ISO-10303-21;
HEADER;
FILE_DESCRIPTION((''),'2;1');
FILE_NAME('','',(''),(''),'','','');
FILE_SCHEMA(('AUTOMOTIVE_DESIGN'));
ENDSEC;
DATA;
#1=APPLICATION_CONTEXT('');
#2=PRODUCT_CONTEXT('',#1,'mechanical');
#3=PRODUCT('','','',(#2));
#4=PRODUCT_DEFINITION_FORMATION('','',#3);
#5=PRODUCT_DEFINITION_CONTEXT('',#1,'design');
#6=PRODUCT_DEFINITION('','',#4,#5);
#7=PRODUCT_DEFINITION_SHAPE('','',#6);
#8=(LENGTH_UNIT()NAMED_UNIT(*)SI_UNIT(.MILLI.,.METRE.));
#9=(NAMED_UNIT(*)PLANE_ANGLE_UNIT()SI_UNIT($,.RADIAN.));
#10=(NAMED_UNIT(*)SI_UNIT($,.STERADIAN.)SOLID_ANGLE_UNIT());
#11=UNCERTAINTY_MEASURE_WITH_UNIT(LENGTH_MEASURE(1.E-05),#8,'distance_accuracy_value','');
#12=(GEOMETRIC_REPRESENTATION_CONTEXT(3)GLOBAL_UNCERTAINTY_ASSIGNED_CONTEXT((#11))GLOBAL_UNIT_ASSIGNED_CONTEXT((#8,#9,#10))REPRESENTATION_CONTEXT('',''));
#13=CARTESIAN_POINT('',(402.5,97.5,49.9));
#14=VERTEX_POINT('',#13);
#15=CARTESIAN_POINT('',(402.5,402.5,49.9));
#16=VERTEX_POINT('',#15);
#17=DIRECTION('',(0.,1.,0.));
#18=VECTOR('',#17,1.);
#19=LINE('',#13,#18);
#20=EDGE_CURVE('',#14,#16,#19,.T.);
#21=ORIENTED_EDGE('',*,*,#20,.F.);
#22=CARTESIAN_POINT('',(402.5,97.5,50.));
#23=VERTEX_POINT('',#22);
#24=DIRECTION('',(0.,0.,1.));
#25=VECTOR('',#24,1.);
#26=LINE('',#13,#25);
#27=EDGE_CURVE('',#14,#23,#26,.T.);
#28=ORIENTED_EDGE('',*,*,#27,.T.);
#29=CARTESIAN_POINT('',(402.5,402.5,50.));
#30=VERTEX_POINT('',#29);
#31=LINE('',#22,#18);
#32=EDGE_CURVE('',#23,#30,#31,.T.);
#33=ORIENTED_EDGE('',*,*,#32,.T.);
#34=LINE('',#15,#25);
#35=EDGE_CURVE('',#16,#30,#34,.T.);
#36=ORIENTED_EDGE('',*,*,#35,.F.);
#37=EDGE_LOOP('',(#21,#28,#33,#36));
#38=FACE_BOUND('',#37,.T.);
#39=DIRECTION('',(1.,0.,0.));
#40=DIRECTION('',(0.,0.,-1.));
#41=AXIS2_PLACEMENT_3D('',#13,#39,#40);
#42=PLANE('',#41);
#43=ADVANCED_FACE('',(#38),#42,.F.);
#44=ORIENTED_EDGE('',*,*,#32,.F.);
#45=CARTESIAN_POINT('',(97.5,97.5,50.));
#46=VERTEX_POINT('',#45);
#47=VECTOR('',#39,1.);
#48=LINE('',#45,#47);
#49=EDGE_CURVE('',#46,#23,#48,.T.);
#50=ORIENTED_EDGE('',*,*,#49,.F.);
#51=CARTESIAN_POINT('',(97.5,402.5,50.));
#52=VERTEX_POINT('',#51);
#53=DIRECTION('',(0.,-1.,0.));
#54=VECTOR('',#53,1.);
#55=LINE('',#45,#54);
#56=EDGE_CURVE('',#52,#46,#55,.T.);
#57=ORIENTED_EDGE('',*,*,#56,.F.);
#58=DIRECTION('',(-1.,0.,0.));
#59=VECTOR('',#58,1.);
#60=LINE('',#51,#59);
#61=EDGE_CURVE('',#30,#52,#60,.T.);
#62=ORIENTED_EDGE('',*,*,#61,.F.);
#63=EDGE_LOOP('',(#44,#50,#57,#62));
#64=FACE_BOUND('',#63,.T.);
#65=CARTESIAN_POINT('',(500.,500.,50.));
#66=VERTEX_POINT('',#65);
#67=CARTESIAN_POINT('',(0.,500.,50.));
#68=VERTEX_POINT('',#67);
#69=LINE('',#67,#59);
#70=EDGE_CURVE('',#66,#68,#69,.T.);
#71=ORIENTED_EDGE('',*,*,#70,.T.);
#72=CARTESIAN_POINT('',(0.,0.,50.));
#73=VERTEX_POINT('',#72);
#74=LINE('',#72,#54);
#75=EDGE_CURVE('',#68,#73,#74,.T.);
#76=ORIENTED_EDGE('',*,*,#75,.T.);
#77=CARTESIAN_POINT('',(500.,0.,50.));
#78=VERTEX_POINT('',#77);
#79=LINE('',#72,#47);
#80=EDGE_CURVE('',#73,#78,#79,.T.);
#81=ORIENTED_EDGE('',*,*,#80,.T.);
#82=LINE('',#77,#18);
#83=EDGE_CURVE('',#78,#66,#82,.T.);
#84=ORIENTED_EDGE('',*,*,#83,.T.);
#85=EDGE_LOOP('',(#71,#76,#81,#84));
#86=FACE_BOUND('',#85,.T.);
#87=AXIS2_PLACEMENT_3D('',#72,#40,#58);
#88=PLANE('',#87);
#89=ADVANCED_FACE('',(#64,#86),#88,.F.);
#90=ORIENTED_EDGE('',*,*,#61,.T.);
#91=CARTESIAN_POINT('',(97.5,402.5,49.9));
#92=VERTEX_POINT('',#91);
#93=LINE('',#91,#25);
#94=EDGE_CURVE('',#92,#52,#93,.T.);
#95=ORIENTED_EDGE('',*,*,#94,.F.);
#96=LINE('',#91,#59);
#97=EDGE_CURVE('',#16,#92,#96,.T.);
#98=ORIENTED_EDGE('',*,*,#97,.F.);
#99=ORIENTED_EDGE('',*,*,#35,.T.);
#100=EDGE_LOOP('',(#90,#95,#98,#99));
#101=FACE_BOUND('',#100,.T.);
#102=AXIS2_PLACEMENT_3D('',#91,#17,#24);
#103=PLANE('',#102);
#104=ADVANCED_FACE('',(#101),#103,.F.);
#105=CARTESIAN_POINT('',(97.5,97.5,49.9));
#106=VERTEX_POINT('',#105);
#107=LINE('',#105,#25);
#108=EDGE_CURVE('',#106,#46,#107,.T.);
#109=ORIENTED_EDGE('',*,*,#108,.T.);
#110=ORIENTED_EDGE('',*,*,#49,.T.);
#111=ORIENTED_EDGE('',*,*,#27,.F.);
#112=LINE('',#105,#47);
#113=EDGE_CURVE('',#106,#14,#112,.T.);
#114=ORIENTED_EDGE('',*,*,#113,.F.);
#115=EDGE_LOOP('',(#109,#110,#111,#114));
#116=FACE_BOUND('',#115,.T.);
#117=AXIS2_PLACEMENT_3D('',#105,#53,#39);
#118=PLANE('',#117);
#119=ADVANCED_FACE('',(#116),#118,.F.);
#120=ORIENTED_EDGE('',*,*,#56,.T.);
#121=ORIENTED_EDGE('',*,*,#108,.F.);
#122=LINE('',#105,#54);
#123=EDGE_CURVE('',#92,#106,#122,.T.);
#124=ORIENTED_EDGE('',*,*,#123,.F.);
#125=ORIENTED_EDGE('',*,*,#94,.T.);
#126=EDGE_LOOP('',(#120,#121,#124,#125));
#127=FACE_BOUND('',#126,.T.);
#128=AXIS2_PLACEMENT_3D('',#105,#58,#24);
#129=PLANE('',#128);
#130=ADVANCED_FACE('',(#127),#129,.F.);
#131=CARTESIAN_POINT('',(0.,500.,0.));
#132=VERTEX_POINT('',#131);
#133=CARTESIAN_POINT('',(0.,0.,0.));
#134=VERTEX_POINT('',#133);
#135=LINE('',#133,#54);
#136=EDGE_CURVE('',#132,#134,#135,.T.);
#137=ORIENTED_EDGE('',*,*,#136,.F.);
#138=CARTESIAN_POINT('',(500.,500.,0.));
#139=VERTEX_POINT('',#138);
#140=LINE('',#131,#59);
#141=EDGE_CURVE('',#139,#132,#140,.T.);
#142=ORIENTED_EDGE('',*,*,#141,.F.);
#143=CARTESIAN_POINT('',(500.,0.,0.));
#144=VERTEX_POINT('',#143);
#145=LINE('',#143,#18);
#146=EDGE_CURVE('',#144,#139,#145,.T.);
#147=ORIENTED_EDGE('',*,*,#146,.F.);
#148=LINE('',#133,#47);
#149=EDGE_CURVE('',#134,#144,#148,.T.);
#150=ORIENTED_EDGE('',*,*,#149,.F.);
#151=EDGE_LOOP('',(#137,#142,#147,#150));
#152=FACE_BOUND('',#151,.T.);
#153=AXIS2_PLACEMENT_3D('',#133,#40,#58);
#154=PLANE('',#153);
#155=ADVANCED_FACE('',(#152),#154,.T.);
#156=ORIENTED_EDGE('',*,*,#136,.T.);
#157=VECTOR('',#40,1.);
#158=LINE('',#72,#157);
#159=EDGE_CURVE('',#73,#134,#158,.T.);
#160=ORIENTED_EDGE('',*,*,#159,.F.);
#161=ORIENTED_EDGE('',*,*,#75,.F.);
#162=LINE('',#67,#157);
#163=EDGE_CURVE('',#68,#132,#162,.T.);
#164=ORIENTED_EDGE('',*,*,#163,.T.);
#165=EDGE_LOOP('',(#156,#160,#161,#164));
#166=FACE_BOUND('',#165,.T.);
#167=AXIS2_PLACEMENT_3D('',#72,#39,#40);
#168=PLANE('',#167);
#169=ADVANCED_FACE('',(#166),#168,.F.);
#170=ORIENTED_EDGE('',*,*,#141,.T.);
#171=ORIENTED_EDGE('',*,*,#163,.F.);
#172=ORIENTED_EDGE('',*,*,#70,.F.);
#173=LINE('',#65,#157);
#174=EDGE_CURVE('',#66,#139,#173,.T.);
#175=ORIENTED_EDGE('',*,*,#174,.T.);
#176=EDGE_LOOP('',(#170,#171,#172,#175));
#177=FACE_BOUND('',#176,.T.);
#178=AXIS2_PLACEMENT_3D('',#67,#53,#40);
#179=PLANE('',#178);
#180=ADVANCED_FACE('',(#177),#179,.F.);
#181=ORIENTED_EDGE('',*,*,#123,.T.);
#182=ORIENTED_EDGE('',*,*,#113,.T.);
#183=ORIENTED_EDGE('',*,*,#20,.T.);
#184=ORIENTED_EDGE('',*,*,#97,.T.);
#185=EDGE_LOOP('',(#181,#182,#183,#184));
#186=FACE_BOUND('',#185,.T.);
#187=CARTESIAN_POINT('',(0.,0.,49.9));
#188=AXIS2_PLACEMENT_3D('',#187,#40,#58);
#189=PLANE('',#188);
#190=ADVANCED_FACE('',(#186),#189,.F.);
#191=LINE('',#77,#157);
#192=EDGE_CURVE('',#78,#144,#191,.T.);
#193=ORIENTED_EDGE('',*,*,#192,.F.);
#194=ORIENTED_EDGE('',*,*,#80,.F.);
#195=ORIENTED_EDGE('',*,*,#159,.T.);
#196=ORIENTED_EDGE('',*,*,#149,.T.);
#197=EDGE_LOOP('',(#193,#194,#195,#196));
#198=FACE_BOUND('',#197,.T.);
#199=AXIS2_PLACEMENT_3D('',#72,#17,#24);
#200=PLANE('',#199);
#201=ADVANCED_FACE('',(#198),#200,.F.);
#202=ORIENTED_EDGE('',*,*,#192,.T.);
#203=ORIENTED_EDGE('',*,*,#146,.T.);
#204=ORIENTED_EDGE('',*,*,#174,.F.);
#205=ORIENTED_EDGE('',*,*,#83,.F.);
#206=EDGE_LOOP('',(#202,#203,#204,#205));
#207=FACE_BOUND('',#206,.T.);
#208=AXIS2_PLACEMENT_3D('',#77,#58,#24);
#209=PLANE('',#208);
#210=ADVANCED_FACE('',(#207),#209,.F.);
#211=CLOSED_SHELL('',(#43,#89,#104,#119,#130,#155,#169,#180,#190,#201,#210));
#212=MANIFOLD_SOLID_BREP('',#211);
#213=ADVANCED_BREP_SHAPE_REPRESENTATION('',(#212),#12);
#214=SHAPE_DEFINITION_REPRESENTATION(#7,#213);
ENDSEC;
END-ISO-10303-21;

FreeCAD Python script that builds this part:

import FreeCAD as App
import Part
import Sketcher


def add_polygon(sketch, points):
    """Adds a closed chain of lines whose ends are joined by coincident constraints."""
    first, n = sketch.GeometryCount, len(points)
    for a, b in zip(points, points[1:] + points[:1]):
        sketch.addGeometry(Part.LineSegment(App.Vector(*a, 0), App.Vector(*b, 0)), False)
    for i in range(n):
        sketch.addConstraint(Sketcher.Constraint("Coincident", first + i, 2, first + (i + 1) % n, 1))

doc = App.newDocument("Part")
params = doc.addObject("Spreadsheet::Sheet", "Params")
for row, (alias, value) in enumerate([
    ("sketch1_width", "500 mm"),
    ("pad1_length", "50 mm"),
    ("sketch2_width", "305 mm"),
    ("pocket1_length", "0.1 mm"),
], start=1):
    params.set(f"A{row}", alias)
    params.set(f"B{row}", "=" + value)
    params.setAlias(f"B{row}", alias)

body = doc.addObject("PartDesign::Body", "Body")

# Sketch on XY plane
sketch1 = body.newObject("Sketcher::SketchObject", "Sketch")
sketch1.AttachmentSupport = (doc.getObject("XY_Plane"), [""])
sketch1.MapMode = "FlatFace"
add_polygon(sketch1, [(0, 500), (0, 0), (500, 0), (500, 500)])  # lines 0-3
sketch1.addConstraint([
    Sketcher.Constraint("Vertical", 0),
    Sketcher.Constraint("Horizontal", 1),
    Sketcher.Constraint("Vertical", 2),
    Sketcher.Constraint("Horizontal", 3),
    Sketcher.Constraint("Coincident", 0, 2, -1, 1),
    Sketcher.Constraint("Equal", 3, 0),
    Sketcher.Constraint("DistanceX", 1, 1, 1, 2, 500.0),
])
sketch1.setExpression("Constraints[10]", "Params.sketch1_width")
pad1 = body.newObject("PartDesign::Pad", "Pad")
pad1.Profile = sketch1
pad1.setExpression("Length", "Params.pad1_length")

# Sketch on XY plane
sketch2 = body.newObject("Sketcher::SketchObject", "Sketch001")
sketch2.AttachmentSupport = (doc.getObject("XY_Plane"), [""])
sketch2.MapMode = "FlatFace"
sketch2.AttachmentOffset = App.Placement(App.Vector(0, 0, 50), App.Rotation())
add_polygon(sketch2, [(98, 402), (98, 98), (402, 98), (402, 402)])  # lines 0-3
sketch2.addConstraint([
    Sketcher.Constraint("Vertical", 0),
    Sketcher.Constraint("Horizontal", 1),
    Sketcher.Constraint("Vertical", 2),
    Sketcher.Constraint("Horizontal", 3),
    Sketcher.Constraint("Equal", 3, 0),
    Sketcher.Constraint("DistanceX", 1, 1, 1, 2, 305.0),
    Sketcher.Constraint("DistanceX", -1, 1, 0, 2, 97.5),
    Sketcher.Constraint("DistanceY", -1, 1, 0, 2, 97.5),
])
sketch2.setExpression("Constraints[9]", "Params.sketch2_width")
pocket1 = body.newObject("PartDesign::Pocket", "Pocket")
pocket1.Profile = sketch2
pocket1.setExpression("Length", "Params.pocket1_length")

doc.recompute()
